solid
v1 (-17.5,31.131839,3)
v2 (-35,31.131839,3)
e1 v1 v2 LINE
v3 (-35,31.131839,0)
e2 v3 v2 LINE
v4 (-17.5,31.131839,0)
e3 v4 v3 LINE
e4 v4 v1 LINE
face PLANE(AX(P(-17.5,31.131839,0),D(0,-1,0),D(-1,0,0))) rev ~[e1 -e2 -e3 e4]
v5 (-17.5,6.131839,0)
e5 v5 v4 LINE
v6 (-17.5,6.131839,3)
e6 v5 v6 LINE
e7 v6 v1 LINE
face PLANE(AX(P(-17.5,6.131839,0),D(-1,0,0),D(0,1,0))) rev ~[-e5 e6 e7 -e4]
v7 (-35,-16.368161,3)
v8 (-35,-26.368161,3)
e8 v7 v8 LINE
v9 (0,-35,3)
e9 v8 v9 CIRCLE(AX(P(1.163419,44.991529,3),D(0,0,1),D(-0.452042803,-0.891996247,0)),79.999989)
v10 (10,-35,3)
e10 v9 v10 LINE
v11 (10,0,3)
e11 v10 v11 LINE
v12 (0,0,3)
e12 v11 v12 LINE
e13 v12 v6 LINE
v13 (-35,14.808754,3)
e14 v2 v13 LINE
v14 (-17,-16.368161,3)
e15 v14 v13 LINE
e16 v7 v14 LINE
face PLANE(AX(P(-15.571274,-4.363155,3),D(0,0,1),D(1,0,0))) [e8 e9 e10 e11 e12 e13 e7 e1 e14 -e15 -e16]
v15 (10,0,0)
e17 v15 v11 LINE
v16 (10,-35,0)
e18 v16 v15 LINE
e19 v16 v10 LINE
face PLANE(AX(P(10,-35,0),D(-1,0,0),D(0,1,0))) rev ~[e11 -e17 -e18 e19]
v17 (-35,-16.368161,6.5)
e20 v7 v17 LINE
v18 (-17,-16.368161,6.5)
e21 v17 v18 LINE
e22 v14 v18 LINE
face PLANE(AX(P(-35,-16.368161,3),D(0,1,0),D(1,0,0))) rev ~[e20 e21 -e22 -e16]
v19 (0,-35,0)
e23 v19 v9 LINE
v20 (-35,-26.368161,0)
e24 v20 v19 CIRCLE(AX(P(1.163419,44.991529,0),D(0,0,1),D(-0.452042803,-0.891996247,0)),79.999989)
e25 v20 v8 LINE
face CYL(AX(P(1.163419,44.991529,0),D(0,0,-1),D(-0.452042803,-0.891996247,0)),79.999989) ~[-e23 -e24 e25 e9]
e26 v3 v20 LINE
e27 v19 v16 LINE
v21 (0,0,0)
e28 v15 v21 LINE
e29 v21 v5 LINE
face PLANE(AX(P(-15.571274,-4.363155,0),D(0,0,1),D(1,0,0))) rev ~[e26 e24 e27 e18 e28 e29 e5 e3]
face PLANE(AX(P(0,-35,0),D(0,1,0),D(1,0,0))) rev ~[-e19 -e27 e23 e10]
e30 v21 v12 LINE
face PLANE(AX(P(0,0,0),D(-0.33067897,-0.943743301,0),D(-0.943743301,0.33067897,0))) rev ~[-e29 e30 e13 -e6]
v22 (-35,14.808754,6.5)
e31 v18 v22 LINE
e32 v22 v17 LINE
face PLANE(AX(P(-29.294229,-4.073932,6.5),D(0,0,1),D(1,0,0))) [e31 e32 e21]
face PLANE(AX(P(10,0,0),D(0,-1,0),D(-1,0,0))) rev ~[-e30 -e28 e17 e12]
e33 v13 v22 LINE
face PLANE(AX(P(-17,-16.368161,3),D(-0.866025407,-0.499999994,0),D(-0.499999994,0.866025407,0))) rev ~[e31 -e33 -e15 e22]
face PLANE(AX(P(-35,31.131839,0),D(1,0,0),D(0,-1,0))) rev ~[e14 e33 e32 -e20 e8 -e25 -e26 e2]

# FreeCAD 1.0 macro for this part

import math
import FreeCAD as App
import Part
import Sketcher
Q = App.Units.Quantity


def add_polygon(sketch, points):
    """Adds a closed chain of lines whose ends are joined by coincident constraints."""
    first, n = sketch.GeometryCount, len(points)
    for a, b in zip(points, points[1:] + points[:1]):
        sketch.addGeometry(Part.LineSegment(App.Vector(*a, 0), App.Vector(*b, 0)), False)
    for i in range(n):
        sketch.addConstraint(Sketcher.Constraint("Coincident", first + i, 2, first + (i + 1) % n, 1))

doc = App.newDocument("Part")
body = doc.addObject("PartDesign::Body", "Body")

# Sketch on XY plane
sketch1 = body.newObject("Sketcher::SketchObject", "Sketch")
sketch1.AttachmentSupport = (doc.getObject("XY_Plane"), [""])
sketch1.MapMode = "FlatFace"
sketch1.addGeometry([
    Part.LineSegment(App.Vector(-17.5, 31.131839, 0), App.Vector(-35, 31.131839, 0)),  # 0
    Part.LineSegment(App.Vector(-35, 31.131839, 0), App.Vector(-35, -26.368161, 0)),  # 1
    Part.ArcOfCircle(Part.Circle(App.Vector(1.163419, 44.991529, 0), App.Vector(0, 0, 1), 79.999989), math.radians(-116.874824), math.radians(-90.833267)),  # 2
    Part.LineSegment(App.Vector(0, -35, 0), App.Vector(10, -35, 0)),  # 3
    Part.LineSegment(App.Vector(10, -35, 0), App.Vector(10, 0, 0)),  # 4
    Part.LineSegment(App.Vector(10, 0, 0), App.Vector(0, 0, 0)),  # 5
    Part.LineSegment(App.Vector(0, 0, 0), App.Vector(-17.5, 6.131839, 0)),  # 6
    Part.LineSegment(App.Vector(-17.5, 6.131839, 0), App.Vector(-17.5, 31.131839, 0)),  # 7
], False)
sketch1.addConstraint([
    Sketcher.Constraint("Coincident", 0, 2, 1, 1),
    Sketcher.Constraint("Coincident", 1, 2, 2, 1),
    Sketcher.Constraint("Coincident", 2, 2, 3, 1),
    Sketcher.Constraint("Coincident", 3, 2, 4, 1),
    Sketcher.Constraint("Coincident", 4, 2, 5, 1),
    Sketcher.Constraint("Coincident", 5, 2, 6, 1),
    Sketcher.Constraint("Coincident", 6, 2, 7, 1),
    Sketcher.Constraint("Coincident", 7, 2, 0, 1),
    Sketcher.Constraint("Horizontal", 0),
    Sketcher.Constraint("Vertical", 1),
    Sketcher.Constraint("Horizontal", 3),
    Sketcher.Constraint("Vertical", 4),
    Sketcher.Constraint("Horizontal", 5),
    Sketcher.Constraint("Vertical", 7),
    Sketcher.Constraint("Coincident", 5, 2, -1, 1),
    Sketcher.Constraint("PointOnObject", 2, 2, -2),
    Sketcher.Constraint("DistanceX", 3, 1, 3, 2, Q("10 mm")),
    Sketcher.Constraint("DistanceY", 4, 1, 4, 2, Q("35 mm")),
    Sketcher.Constraint("DistanceY", 7, 1, 7, 2, Q("25 mm")),
    Sketcher.Constraint("DistanceX", 0, 2, 0, 1, Q("17.5 mm")),
    Sketcher.Constraint("DistanceY", 1, 2, 1, 1, Q("57.5 mm")),
    Sketcher.Constraint("DistanceX", 0, 2, -1, 1, Q("35 mm")),
    Sketcher.Constraint("Angle", 6, Q("160.690009 deg")),
    Sketcher.Constraint("Radius", 2, Q("79.999989 mm")),
])
pad1 = body.newObject("PartDesign::Pad", "Pad")
pad1.Profile = sketch1
pad1.Length = 3

# Sketch on XY plane
sketch2 = body.newObject("Sketcher::SketchObject", "Sketch001")
sketch2.AttachmentSupport = (doc.getObject("XY_Plane"), [""])
sketch2.MapMode = "FlatFace"
sketch2.AttachmentOffset = App.Placement(App.Vector(0, 0, 3), App.Rotation())
add_polygon(sketch2, [(-35, 14.808754), (-35, -16.368161), (-17, -16.368161)])  # lines 0-2
sketch2.addConstraint([
    Sketcher.Constraint("Vertical", 0),
    Sketcher.Constraint("Horizontal", 1),
    Sketcher.Constraint("DistanceX", 1, 1, 1, 2, Q("18 mm")),
    Sketcher.Constraint("Angle", 2, Q("120 deg")),
    Sketcher.Constraint("DistanceX", 0, 2, -1, 1, Q("35 mm")),
    Sketcher.Constraint("DistanceY", 0, 2, -1, 1, Q("16.368161 mm")),
])
pad2 = body.newObject("PartDesign::Pad", "Pad001")
pad2.Profile = sketch2
pad2.Length = 3.5

doc.recompute()
